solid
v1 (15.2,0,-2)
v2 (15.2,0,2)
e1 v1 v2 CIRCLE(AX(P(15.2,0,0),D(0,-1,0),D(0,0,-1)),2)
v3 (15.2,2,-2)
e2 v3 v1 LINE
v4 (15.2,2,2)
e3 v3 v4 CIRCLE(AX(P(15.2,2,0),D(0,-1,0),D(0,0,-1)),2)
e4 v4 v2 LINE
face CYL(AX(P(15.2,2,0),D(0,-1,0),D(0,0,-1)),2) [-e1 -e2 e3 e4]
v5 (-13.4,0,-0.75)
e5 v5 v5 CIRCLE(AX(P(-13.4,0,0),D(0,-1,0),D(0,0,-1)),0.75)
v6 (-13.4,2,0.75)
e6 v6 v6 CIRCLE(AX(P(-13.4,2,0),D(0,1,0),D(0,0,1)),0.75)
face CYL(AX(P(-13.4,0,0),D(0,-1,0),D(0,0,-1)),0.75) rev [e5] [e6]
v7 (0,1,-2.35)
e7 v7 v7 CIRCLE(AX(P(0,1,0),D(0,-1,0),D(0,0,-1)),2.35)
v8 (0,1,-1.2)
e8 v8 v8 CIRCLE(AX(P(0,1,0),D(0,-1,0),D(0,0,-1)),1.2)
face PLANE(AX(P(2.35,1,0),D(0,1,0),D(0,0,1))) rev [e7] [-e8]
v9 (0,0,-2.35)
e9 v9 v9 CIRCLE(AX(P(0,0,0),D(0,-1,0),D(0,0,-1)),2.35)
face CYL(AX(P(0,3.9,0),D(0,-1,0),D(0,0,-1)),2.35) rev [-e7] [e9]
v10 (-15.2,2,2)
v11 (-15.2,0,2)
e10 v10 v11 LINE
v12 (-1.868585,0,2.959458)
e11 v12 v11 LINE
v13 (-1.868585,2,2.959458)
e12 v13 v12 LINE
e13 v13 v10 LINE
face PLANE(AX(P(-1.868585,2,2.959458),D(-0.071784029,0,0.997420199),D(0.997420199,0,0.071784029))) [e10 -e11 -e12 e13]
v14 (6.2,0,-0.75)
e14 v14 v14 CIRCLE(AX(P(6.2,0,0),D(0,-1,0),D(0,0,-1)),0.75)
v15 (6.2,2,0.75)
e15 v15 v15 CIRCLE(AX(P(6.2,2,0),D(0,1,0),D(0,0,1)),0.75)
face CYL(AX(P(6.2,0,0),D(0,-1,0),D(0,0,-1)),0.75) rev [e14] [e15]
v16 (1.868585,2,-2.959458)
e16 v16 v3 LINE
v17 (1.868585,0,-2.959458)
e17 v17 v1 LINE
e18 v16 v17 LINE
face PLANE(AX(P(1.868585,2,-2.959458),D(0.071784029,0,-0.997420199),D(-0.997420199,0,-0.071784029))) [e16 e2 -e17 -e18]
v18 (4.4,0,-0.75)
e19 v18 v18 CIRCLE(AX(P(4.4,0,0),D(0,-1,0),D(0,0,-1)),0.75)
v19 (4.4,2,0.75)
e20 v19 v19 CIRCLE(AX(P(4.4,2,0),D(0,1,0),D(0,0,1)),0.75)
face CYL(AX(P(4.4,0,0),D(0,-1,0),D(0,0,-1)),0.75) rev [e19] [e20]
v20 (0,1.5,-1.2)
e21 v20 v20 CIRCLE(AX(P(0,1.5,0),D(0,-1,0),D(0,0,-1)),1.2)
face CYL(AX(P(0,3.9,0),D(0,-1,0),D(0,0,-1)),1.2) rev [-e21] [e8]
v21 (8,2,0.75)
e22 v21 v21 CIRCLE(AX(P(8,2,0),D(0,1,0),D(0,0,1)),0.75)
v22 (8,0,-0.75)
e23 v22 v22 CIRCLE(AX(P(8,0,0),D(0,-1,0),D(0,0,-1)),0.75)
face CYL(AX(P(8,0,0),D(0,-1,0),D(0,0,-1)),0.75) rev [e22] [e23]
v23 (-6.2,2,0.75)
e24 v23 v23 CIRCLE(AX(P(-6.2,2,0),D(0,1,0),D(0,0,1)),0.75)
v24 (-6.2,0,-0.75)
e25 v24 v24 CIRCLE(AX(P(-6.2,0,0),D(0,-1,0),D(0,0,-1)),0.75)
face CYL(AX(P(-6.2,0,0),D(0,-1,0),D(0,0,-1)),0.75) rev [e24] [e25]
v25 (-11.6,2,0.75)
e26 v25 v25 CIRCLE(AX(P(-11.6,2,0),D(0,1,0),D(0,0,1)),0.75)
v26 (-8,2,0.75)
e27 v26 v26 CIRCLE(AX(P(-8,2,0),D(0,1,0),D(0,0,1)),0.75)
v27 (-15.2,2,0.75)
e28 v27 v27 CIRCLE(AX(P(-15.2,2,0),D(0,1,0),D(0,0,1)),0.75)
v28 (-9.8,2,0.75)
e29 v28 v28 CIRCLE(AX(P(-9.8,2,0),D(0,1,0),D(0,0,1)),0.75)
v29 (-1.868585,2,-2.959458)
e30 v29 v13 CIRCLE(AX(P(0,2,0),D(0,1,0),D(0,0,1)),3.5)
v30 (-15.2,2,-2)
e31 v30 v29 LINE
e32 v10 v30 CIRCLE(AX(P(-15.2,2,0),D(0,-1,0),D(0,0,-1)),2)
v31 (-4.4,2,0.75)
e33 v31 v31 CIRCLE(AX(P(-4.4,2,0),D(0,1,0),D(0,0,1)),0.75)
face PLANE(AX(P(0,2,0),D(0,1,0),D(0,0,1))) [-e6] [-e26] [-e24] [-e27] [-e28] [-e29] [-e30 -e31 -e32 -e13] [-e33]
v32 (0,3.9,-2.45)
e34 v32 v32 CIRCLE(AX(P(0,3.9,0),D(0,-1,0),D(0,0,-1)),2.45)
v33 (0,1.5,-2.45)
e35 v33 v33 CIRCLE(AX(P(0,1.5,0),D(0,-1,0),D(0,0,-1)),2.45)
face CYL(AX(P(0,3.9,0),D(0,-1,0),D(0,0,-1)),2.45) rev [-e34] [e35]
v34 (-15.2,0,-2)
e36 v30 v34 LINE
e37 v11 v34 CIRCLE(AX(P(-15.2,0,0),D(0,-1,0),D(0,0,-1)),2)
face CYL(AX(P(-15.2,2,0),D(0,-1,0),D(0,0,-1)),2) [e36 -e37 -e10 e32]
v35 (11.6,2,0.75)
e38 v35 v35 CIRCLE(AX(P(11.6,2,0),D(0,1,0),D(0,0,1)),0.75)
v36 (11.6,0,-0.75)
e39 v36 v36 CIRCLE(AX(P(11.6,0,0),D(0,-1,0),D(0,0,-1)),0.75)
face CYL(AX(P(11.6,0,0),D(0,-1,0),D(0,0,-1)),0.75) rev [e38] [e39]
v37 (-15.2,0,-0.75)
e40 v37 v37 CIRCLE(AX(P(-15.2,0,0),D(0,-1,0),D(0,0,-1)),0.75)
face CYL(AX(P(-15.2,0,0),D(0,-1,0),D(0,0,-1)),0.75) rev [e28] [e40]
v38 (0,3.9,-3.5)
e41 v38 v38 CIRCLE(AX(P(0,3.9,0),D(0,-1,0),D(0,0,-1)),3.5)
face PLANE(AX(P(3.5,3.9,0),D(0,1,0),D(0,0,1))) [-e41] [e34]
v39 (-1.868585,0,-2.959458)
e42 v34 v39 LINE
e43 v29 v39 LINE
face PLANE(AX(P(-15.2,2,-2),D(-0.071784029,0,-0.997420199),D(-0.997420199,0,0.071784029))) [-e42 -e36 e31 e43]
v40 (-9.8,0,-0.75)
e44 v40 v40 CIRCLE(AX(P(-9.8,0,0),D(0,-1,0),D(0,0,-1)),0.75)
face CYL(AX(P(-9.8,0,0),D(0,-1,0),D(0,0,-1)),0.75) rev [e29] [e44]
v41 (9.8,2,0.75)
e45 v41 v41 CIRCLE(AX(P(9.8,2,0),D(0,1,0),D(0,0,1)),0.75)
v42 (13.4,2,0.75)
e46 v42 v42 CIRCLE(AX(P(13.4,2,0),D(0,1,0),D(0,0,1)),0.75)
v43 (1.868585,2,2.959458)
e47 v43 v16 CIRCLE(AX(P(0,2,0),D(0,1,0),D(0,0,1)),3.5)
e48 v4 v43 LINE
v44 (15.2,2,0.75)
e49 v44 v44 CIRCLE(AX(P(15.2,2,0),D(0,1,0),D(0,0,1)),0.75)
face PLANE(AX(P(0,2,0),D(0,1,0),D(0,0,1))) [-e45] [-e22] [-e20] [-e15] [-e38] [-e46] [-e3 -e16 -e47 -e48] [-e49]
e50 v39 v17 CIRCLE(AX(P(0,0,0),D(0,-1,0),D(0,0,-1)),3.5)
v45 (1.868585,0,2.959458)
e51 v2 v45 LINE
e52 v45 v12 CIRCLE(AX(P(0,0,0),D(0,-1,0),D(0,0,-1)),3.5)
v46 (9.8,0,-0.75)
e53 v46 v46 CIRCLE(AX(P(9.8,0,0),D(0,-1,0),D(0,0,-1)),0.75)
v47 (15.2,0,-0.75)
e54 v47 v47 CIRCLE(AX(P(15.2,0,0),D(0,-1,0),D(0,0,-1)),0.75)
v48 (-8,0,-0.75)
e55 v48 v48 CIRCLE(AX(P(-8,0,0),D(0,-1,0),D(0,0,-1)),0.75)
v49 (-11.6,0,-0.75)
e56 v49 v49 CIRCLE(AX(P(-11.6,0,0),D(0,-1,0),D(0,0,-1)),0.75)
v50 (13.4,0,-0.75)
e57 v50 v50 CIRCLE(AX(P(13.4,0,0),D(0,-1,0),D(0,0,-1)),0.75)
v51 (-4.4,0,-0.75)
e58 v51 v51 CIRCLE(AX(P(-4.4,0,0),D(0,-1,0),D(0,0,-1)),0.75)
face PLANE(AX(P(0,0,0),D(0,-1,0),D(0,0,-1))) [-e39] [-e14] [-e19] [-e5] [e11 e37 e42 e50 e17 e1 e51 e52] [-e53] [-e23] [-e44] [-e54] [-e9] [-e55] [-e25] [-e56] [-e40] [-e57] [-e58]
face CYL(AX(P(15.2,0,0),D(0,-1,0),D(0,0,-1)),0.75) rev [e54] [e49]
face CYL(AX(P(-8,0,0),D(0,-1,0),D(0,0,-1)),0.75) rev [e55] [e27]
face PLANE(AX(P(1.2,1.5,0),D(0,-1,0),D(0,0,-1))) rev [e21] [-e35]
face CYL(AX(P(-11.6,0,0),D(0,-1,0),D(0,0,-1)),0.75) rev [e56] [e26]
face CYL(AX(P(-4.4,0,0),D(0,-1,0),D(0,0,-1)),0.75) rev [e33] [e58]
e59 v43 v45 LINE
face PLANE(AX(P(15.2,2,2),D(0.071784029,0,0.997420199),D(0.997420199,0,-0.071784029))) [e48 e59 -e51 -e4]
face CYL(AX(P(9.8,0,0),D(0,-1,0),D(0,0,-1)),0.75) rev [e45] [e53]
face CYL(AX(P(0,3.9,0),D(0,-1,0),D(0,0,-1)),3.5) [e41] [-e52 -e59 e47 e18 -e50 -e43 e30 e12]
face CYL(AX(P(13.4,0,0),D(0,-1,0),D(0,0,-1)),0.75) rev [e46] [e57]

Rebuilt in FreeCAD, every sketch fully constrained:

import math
import FreeCAD as App
import Part
import Sketcher

V = App.Vector

doc = App.newDocument("Part")
body = doc.addObject("PartDesign::Body", "Body")

sketch1 = body.newObject("Sketcher::SketchObject", "Sketch")
sketch1.AttachmentSupport = (doc.getObject("XY_Plane"), [""])
sketch1.MapMode = "FlatFace"
sketch1.addGeometry([
    Part.LineSegment(V(0, 3.9, 0), V(0, 0, 0)),
    Part.LineSegment(V(0, 0, 0), V(3.5, 0, 0)),
    Part.LineSegment(V(3.5, 0, 0), V(3.5, 3.9, 0)),
    Part.LineSegment(V(3.5, 3.9, 0), V(0, 3.9, 0)),
], False)
sketch1.addConstraint([
    Sketcher.Constraint("Coincident", 0, 2, 1, 1),
    Sketcher.Constraint("Coincident", 1, 2, 2, 1),
    Sketcher.Constraint("Coincident", 2, 2, 3, 1),
    Sketcher.Constraint("Coincident", 3, 2, 0, 1),
    Sketcher.Constraint("Vertical", 0),
    Sketcher.Constraint("Horizontal", 1),
    Sketcher.Constraint("Vertical", 2),
    Sketcher.Constraint("Horizontal", 3),
    Sketcher.Constraint("Coincident", 0, 2, -1, 1),
    Sketcher.Constraint("DistanceX", 1, 1, 1, 2, 3.5),
    Sketcher.Constraint("DistanceY", 0, 2, 0, 1, 3.9),
])
revolution = body.newObject("PartDesign::Revolution", "Revolution")
revolution.Profile = sketch1
revolution.ReferenceAxis = (sketch1, ["V_Axis"])
revolution.Angle = 360

sketch2 = body.newObject("Sketcher::SketchObject", "Sketch001")
sketch2.AttachmentSupport = (doc.getObject("XZ_Plane"), [""])
sketch2.MapMode = "FlatFace"
sketch2.AttachmentOffset = App.Placement(V(0, 0, -2), App.Rotation())
sketch2.addGeometry([
    Part.LineSegment(V(-1.9, 3, 0), V(-15.2, 2, 0)),
    Part.ArcOfCircle(Part.Circle(V(-15.2, 0, 0), V(0, 0, 1), 2), math.radians(90), math.radians(270)),
    Part.LineSegment(V(-15.2, -2, 0), V(-1.9, -3, 0)),
    Part.ArcOfCircle(Part.Circle(V(0, 0, 0), V(0, 0, 1), 3.5), math.radians(122), math.radians(238)),
], False)
sketch2.addConstraint([
    Sketcher.Constraint("Coincident", 0, 2, 1, 1),
    Sketcher.Constraint("Coincident", 1, 2, 2, 1),
    Sketcher.Constraint("Coincident", 2, 2, 3, 2),
    Sketcher.Constraint("Coincident", 3, 1, 0, 1),
    Sketcher.Constraint("Coincident", 3, 3, -1, 1),
    Sketcher.Constraint("Symmetric", 0, 2, 1, 2, -1),
    Sketcher.Constraint("Vertical", 1, 3, 0, 2),
    Sketcher.Constraint("Vertical", 2, 2, 3, 1),
    Sketcher.Constraint("Radius", 1, 2.0),
    Sketcher.Constraint("Radius", 3, 3.5),
    Sketcher.Constraint("DistanceX", 1, 3, -1, 1, 15.2),
    Sketcher.Constraint("Distance", 0, 13.365897),
])
pad1 = body.newObject("PartDesign::Pad", "Pad")
pad1.Profile = sketch2
pad1.Length = 2

sketch3 = body.newObject("Sketcher::SketchObject", "Sketch002")
sketch3.AttachmentSupport = (doc.getObject("XZ_Plane"), [""])
sketch3.MapMode = "FlatFace"
sketch3.AttachmentOffset = App.Placement(V(0, 0, -2), App.Rotation())
sketch3.addGeometry([
    Part.LineSegment(V(1.9, -3, 0), V(15.2, -2, 0)),
    Part.ArcOfCircle(Part.Circle(V(15.2, 0, 0), V(0, 0, 1), 2), math.radians(-90), math.radians(90)),
    Part.LineSegment(V(15.2, 2, 0), V(1.9, 3, 0)),
    Part.ArcOfCircle(Part.Circle(V(0, 0, 0), V(0, 0, 1), 3.5), math.radians(-58), math.radians(58)),
], False)
sketch3.addConstraint([
    Sketcher.Constraint("Coincident", 0, 2, 1, 1),
    Sketcher.Constraint("Coincident", 1, 2, 2, 1),
    Sketcher.Constraint("Coincident", 2, 2, 3, 2),
    Sketcher.Constraint("Coincident", 3, 1, 0, 1),
    Sketcher.Constraint("Coincident", 3, 3, -1, 1),
    Sketcher.Constraint("Symmetric", 0, 2, 1, 2, -1),
    Sketcher.Constraint("Vertical", 1, 3, 0, 2),
    Sketcher.Constraint("Vertical", 2, 2, 3, 1),
    Sketcher.Constraint("Radius", 1, 2.0),
    Sketcher.Constraint("Radius", 3, 3.5),
    Sketcher.Constraint("DistanceX", -1, 1, 1, 3, 15.2),
    Sketcher.Constraint("Distance", 0, 13.365897),
])
pad2 = body.newObject("PartDesign::Pad", "Pad001")
pad2.Profile = sketch3
pad2.Length = 2

sketch4 = body.newObject("Sketcher::SketchObject", "Sketch003")
sketch4.AttachmentSupport = (doc.getObject("XY_Plane"), [""])
sketch4.MapMode = "FlatFace"
sketch4.addGeometry([
    Part.LineSegment(V(2.5, 3.9, 0), V(0, 3.9, 0)),
    Part.LineSegment(V(0, 3.9, 0), V(0, 0, 0)),
    Part.LineSegment(V(0, 0, 0), V(2.4, 0, 0)),
    Part.LineSegment(V(2.4, 0, 0), V(2.4, 1, 0)),
    Part.LineSegment(V(2.4, 1, 0), V(1.2, 1, 0)),
    Part.LineSegment(V(1.2, 1, 0), V(1.2, 1.5, 0)),
    Part.LineSegment(V(1.2, 1.5, 0), V(2.5, 1.5, 0)),
    Part.LineSegment(V(2.5, 1.5, 0), V(2.5, 3.9, 0)),
], False)
sketch4.addConstraint([
    Sketcher.Constraint("Coincident", 0, 2, 1, 1),
    Sketcher.Constraint("Coincident", 1, 2, 2, 1),
    Sketcher.Constraint("Coincident", 2, 2, 3, 1),
    Sketcher.Constraint("Coincident", 3, 2, 4, 1),
    Sketcher.Constraint("Coincident", 4, 2, 5, 1),
    Sketcher.Constraint("Coincident", 5, 2, 6, 1),
    Sketcher.Constraint("Coincident", 6, 2, 7, 1),
    Sketcher.Constraint("Coincident", 7, 2, 0, 1),
    Sketcher.Constraint("Horizontal", 0),
    Sketcher.Constraint("Vertical", 1),
    Sketcher.Constraint("Horizontal", 2),
    Sketcher.Constraint("Vertical", 3),
    Sketcher.Constraint("Horizontal", 4),
    Sketcher.Constraint("Vertical", 5),
    Sketcher.Constraint("Horizontal", 6),
    Sketcher.Constraint("Vertical", 7),
    Sketcher.Constraint("Coincident", 1, 2, -1, 1),
    Sketcher.Constraint("DistanceY", 3, 1, 3, 2, 1.0),
    Sketcher.Constraint("DistanceY", 1, 2, 1, 1, 3.9),
    Sketcher.Constraint("DistanceY", 5, 1, 5, 2, 0.5),
    Sketcher.Constraint("DistanceX", 0, 2, 0, 1, 2.45),
    Sketcher.Constraint("DistanceX", 2, 1, 2, 2, 2.35),
    Sketcher.Constraint("DistanceX", 4, 2, 4, 1, 1.15),
])
groove = body.newObject("PartDesign::Groove", "Groove")
groove.Profile = sketch4
groove.ReferenceAxis = (sketch4, ["V_Axis"])
groove.Angle = 360

sketch5 = body.newObject("Sketcher::SketchObject", "Sketch004")
sketch5.AttachmentSupport = (doc.getObject("XZ_Plane"), [""])
sketch5.MapMode = "FlatFace"
sketch5.addGeometry([
    Part.Circle(V(-15.2, 0, 0), V(0, 0, 1), 0.8),
    Part.Circle(V(15.2, 0, 0), V(0, 0, 1), 0.8),
    Part.Circle(V(-13.4, 0, 0), V(0, 0, 1), 0.8),
    Part.Circle(V(-11.6, 0, 0), V(0, 0, 1), 0.8),
    Part.Circle(V(-9.8, 0, 0), V(0, 0, 1), 0.8),
    Part.Circle(V(-8, 0, 0), V(0, 0, 1), 0.8),
    Part.Circle(V(-6.2, 0, 0), V(0, 0, 1), 0.8),
    Part.Circle(V(-4.4, 0, 0), V(0, 0, 1), 0.8),
    Part.Circle(V(13.4, 0, 0), V(0, 0, 1), 0.8),
    Part.Circle(V(11.6, 0, 0), V(0, 0, 1), 0.8),
    Part.Circle(V(9.8, 0, 0), V(0, 0, 1), 0.8),
    Part.Circle(V(8, 0, 0), V(0, 0, 1), 0.8),
    Part.Circle(V(6.2, 0, 0), V(0, 0, 1), 0.8),
    Part.Circle(V(4.4, 0, 0), V(0, 0, 1), 0.8),
], False)
sketch5.addConstraint([
    Sketcher.Constraint("Equal", 0, 1),
    Sketcher.Constraint("Equal", 1, 2),
    Sketcher.Constraint("Equal", 2, 3),
    Sketcher.Constraint("Equal", 3, 4),
    Sketcher.Constraint("Equal", 4, 5),
    Sketcher.Constraint("Equal", 5, 6),
    Sketcher.Constraint("Equal", 6, 7),
    Sketcher.Constraint("Equal", 7, 8),
    Sketcher.Constraint("Equal", 8, 9),
    Sketcher.Constraint("Equal", 9, 10),
    Sketcher.Constraint("Equal", 10, 11),
    Sketcher.Constraint("Equal", 11, 12),
    Sketcher.Constraint("Equal", 12, 13),
    Sketcher.Constraint("Symmetric", 0, 3, 1, 3, -1, 1),
    Sketcher.Constraint("Symmetric", 2, 3, 8, 3, -1, 1),
    Sketcher.Constraint("Symmetric", 3, 3, 9, 3, -1, 1),
    Sketcher.Constraint("Symmetric", 4, 3, 10, 3, -1, 1),
    Sketcher.Constraint("Symmetric", 5, 3, 11, 3, -1, 1),
    Sketcher.Constraint("Symmetric", 6, 3, 12, 3, -1, 1),
    Sketcher.Constraint("Symmetric", 7, 3, 13, 3, -1, 1),
    Sketcher.Constraint("PointOnObject", 0, 3, -1),
    Sketcher.Constraint("PointOnObject", 2, 3, -1),
    Sketcher.Constraint("PointOnObject", 3, 3, -1),
    Sketcher.Constraint("PointOnObject", 4, 3, -1),
    Sketcher.Constraint("PointOnObject", 5, 3, -1),
    Sketcher.Constraint("PointOnObject", 6, 3, -1),
    Sketcher.Constraint("PointOnObject", 7, 3, -1),
    Sketcher.Constraint("Diameter", 0, 1.5),
    Sketcher.Constraint("DistanceX", 5, 3, -1, 1, 8.0),
    Sketcher.Constraint("DistanceX", 4, 3, 1, 3, 25.0),
    Sketcher.Constraint("DistanceX", 0, 3, 6, 3, 9.0),
    Sketcher.Constraint("DistanceX", 2, 3, 7, 3, 9.0),
    Sketcher.Constraint("DistanceX", 7, 3, 9, 3, 16.0),
    Sketcher.Constraint("DistanceX", 0, 3, -1, 1, 15.2),
    Sketcher.Constraint("DistanceX", 2, 3, -1, 1, 13.4),
])
doc.recompute()
hole = body.newObject("PartDesign::Hole", "Hole")
hole.Profile = sketch5
hole.ThreadType = "None"
hole.Diameter = 1.5
hole.DepthType = "ThroughAll"

doc.recompute()
